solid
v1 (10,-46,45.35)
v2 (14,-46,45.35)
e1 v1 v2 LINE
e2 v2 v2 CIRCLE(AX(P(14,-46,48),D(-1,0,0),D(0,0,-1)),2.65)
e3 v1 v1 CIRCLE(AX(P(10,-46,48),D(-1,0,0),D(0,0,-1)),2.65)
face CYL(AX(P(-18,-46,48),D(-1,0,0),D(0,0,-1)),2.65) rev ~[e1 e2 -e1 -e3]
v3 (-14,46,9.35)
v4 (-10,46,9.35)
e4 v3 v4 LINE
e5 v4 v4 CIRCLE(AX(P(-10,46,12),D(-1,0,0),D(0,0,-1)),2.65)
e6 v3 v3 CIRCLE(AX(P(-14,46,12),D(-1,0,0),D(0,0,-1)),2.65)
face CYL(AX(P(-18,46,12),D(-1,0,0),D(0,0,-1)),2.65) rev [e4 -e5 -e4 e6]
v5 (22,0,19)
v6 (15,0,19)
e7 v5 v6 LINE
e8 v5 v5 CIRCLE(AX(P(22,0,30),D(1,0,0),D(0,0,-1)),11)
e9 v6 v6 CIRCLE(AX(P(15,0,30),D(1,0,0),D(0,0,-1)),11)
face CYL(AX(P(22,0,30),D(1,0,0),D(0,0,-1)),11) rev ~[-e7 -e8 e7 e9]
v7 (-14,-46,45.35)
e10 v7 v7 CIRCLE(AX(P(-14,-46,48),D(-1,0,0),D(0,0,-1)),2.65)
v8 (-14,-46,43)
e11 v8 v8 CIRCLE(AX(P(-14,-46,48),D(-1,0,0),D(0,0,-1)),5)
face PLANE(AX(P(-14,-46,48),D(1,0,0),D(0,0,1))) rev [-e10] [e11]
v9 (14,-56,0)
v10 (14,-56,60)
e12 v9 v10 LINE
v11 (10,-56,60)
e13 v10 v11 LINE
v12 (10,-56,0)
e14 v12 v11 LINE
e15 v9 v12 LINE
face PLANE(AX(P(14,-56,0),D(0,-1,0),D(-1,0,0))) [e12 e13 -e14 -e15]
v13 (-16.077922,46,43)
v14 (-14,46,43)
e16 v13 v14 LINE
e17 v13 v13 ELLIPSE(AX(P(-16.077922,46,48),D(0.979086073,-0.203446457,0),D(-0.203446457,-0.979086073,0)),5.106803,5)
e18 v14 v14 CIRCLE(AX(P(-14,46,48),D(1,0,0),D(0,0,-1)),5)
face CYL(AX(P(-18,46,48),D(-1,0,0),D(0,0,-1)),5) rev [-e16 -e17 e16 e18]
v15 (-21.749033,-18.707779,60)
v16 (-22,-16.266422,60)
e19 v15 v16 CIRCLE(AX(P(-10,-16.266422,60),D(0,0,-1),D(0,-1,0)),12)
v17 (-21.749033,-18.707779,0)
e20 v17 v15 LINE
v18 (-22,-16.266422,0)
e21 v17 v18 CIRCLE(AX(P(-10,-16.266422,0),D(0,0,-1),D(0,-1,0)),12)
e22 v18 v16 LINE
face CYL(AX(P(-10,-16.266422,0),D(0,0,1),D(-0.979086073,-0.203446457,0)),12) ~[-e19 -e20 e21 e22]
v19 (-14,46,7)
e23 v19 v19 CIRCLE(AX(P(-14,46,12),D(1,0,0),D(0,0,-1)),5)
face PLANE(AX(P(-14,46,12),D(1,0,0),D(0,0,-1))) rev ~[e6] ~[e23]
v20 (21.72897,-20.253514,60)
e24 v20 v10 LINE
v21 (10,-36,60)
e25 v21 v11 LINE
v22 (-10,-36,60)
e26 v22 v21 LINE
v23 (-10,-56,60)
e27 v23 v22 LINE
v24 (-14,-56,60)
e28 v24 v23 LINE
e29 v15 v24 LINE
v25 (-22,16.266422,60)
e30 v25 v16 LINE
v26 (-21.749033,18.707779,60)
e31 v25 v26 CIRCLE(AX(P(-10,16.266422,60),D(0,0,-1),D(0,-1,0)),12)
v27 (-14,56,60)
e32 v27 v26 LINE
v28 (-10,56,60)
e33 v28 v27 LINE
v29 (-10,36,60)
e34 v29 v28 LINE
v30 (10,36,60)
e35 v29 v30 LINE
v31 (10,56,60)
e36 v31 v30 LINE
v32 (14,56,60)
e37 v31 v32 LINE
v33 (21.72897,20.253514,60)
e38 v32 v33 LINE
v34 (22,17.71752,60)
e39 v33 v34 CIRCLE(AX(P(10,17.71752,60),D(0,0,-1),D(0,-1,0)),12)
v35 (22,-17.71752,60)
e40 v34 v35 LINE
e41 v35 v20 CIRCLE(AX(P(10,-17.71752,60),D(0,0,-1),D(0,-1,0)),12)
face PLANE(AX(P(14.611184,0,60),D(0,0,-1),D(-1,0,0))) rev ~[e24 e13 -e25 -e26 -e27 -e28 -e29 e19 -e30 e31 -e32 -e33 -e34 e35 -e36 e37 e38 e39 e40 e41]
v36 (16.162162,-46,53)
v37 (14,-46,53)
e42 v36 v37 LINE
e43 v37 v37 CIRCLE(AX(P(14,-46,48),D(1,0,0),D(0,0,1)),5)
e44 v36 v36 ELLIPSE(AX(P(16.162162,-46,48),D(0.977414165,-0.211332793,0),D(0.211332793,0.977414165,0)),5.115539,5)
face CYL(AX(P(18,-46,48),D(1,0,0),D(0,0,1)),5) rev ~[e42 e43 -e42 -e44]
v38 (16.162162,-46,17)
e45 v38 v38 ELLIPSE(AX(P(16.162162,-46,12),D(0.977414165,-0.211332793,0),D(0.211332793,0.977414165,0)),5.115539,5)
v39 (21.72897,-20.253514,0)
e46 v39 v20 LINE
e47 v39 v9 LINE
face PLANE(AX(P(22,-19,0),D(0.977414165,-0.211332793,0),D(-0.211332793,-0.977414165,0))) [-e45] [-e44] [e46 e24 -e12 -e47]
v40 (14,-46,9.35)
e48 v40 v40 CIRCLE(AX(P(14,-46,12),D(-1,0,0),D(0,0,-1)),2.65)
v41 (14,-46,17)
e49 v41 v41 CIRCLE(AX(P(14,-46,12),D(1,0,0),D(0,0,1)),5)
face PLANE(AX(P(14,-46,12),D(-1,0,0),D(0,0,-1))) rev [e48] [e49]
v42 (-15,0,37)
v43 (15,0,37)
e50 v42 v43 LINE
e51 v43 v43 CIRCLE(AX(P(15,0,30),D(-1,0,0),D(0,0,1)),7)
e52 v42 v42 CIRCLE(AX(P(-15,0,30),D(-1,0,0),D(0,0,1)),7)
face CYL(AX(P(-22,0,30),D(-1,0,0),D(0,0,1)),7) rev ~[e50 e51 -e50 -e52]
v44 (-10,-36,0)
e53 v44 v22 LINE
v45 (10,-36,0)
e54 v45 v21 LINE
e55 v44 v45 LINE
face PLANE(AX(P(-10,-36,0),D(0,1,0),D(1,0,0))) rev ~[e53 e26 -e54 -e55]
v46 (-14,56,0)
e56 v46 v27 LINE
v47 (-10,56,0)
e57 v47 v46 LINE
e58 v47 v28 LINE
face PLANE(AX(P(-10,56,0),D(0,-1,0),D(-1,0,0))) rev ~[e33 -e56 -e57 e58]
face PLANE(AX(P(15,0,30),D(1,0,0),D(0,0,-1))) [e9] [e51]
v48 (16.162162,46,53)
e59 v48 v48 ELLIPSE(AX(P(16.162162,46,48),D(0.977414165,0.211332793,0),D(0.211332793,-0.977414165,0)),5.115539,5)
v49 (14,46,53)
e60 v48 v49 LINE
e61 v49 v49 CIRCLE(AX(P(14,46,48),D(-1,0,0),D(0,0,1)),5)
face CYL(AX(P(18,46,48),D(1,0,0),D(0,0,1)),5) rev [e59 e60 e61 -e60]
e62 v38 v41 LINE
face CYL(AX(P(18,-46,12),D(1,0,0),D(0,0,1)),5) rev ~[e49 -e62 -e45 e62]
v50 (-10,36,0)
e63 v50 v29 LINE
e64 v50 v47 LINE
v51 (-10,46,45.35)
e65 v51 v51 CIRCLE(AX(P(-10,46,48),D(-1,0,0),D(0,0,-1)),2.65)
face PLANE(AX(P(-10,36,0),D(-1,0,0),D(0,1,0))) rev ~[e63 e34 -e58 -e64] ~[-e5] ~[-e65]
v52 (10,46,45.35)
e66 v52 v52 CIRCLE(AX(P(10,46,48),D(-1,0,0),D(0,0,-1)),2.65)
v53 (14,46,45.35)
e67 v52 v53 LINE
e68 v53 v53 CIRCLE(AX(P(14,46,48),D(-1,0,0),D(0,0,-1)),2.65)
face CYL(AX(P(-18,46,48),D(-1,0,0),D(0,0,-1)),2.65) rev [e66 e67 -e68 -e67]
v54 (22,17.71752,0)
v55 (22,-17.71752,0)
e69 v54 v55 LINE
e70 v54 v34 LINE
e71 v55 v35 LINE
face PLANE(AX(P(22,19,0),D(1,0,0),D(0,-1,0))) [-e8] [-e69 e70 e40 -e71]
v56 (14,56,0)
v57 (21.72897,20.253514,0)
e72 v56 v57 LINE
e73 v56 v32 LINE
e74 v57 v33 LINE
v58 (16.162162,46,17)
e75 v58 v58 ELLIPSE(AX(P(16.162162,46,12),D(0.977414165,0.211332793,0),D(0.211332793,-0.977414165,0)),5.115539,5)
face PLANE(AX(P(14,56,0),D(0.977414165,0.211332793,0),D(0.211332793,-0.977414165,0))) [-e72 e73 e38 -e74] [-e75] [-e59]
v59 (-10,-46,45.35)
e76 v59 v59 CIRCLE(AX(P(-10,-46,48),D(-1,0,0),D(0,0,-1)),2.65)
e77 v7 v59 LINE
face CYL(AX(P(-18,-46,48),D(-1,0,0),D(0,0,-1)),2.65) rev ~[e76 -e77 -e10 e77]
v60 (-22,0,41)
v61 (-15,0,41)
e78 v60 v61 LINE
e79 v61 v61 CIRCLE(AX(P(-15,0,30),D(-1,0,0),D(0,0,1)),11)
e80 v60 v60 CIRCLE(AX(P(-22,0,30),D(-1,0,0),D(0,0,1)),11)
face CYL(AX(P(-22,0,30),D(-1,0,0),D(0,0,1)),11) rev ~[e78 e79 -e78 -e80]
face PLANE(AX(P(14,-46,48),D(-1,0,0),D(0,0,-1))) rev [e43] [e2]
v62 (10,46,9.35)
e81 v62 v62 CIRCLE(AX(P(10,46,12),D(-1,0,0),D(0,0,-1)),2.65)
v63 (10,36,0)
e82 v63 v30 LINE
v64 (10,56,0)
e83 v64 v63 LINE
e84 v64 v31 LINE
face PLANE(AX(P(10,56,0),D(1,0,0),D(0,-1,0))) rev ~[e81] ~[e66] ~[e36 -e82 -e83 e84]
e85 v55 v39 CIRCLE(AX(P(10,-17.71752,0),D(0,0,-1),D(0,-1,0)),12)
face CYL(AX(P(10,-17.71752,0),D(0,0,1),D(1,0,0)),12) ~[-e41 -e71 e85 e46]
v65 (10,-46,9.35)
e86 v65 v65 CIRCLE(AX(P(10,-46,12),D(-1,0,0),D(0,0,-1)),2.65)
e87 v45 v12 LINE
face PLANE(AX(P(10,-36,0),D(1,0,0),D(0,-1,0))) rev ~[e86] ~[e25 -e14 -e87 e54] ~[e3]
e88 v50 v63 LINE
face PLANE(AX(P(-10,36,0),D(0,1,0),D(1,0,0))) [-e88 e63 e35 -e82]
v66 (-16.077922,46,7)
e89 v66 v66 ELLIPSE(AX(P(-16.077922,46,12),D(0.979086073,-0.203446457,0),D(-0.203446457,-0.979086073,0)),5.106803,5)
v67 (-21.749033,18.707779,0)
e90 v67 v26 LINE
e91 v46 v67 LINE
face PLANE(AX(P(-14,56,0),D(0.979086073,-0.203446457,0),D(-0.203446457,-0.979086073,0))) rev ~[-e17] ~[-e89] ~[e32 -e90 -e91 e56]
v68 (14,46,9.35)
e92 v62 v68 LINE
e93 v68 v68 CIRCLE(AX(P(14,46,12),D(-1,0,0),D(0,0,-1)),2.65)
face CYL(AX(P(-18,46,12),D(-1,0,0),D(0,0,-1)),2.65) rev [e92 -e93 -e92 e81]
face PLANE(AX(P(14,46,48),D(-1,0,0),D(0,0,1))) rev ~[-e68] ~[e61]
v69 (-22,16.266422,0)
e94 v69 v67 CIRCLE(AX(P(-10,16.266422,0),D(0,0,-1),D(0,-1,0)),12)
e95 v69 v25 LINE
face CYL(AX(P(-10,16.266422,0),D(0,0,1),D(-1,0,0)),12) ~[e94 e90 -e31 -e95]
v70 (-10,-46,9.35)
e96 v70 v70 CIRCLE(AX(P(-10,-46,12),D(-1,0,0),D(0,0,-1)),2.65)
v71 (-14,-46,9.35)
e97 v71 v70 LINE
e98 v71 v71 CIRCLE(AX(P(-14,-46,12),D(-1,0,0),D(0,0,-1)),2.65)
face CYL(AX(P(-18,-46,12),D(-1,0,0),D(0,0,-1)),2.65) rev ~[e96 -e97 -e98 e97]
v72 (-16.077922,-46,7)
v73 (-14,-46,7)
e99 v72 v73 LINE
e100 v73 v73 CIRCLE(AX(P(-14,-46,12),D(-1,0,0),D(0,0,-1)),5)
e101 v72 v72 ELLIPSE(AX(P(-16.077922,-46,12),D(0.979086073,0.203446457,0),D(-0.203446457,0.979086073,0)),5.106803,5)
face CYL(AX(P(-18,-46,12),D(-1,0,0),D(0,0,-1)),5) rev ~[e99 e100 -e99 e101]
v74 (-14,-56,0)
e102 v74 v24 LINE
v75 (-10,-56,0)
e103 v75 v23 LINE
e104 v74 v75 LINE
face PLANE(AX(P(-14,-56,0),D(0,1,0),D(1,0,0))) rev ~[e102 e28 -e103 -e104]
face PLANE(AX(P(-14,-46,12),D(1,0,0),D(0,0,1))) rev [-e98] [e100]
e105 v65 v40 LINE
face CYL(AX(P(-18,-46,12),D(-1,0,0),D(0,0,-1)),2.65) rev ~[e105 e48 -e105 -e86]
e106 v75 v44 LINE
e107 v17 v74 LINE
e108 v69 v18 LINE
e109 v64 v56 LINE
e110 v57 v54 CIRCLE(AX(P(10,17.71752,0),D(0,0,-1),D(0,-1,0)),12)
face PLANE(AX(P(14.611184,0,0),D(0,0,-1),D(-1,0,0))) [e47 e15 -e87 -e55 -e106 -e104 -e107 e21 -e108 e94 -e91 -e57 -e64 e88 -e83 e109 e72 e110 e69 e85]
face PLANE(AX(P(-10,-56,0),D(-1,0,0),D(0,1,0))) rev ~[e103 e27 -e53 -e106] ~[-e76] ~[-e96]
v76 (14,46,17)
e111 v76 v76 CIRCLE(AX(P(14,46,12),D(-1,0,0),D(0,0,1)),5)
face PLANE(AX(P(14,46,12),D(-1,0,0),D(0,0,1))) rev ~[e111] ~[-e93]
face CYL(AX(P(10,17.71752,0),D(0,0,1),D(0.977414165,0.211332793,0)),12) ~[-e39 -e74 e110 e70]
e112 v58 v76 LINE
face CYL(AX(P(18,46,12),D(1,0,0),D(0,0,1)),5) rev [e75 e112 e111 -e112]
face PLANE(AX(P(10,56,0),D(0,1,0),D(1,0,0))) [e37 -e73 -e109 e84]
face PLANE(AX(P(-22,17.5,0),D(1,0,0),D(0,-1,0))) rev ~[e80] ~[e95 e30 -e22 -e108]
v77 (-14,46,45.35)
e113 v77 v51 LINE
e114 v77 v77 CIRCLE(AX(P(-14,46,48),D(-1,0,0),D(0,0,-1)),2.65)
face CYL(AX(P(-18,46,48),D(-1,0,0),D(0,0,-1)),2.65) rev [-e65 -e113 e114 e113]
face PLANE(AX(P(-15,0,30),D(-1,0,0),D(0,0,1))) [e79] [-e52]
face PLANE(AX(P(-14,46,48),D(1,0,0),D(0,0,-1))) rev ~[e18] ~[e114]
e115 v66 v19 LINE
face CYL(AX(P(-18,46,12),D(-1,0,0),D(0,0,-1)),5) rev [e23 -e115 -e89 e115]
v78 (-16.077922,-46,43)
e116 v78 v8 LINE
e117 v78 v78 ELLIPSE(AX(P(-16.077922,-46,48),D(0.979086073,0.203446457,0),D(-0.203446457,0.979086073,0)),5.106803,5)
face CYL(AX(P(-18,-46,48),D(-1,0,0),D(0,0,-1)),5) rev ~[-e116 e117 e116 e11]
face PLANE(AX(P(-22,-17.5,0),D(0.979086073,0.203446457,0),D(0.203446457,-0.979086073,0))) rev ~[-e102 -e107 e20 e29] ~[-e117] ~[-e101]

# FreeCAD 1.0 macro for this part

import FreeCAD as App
import Part
import Sketcher


def edges_at(feature, points):
    """Names of the edges that pass closest to the given points."""
    edges = feature.Shape.Edges
    near = lambda p: min(range(len(edges)), key=lambda i: edges[i].distToShape(Part.Vertex(*p))[0])
    return sorted({f"Edge{near(p) + 1}" for p in points})

doc = App.newDocument("Part")
body = doc.addObject("PartDesign::Body", "Body")

sketch1 = doc.addObject("Sketcher::SketchObject", "Sketch")
body.addObject(sketch1)
sketch1.AttachmentSupport = (doc.XY_Plane, [""])
sketch1.MapMode = "FlatFace"
sketch1.addGeometry([
    Part.LineSegment(App.Vector(10, 56, 0), App.Vector(10, 36, 0)),
    Part.LineSegment(App.Vector(10, 36, 0), App.Vector(-10, 36, 0)),
    Part.LineSegment(App.Vector(-10, 36, 0), App.Vector(-10, 56, 0)),
    Part.LineSegment(App.Vector(-10, 56, 0), App.Vector(-14, 56, 0)),
    Part.LineSegment(App.Vector(-14, 56, 0), App.Vector(-22, 17.5, 0)),
    Part.LineSegment(App.Vector(-22, 17.5, 0), App.Vector(-22, -17.5, 0)),
    Part.LineSegment(App.Vector(-22, -17.5, 0), App.Vector(-14, -56, 0)),
    Part.LineSegment(App.Vector(-14, -56, 0), App.Vector(-10, -56, 0)),
    Part.LineSegment(App.Vector(-10, -56, 0), App.Vector(-10, -36, 0)),
    Part.LineSegment(App.Vector(-10, -36, 0), App.Vector(10, -36, 0)),
    Part.LineSegment(App.Vector(10, -36, 0), App.Vector(10, -56, 0)),
    Part.LineSegment(App.Vector(10, -56, 0), App.Vector(14, -56, 0)),
    Part.LineSegment(App.Vector(14, -56, 0), App.Vector(22, -19, 0)),
    Part.LineSegment(App.Vector(22, -19, 0), App.Vector(22, 19, 0)),
    Part.LineSegment(App.Vector(22, 19, 0), App.Vector(14, 56, 0)),
    Part.LineSegment(App.Vector(14, 56, 0), App.Vector(10, 56, 0)),
], False)
sketch1.addConstraint([
    Sketcher.Constraint("Coincident", 0, 2, 1, 1),
    Sketcher.Constraint("Coincident", 1, 2, 2, 1),
    Sketcher.Constraint("Coincident", 2, 2, 3, 1),
    Sketcher.Constraint("Coincident", 3, 2, 4, 1),
    Sketcher.Constraint("Coincident", 4, 2, 5, 1),
    Sketcher.Constraint("Coincident", 5, 2, 6, 1),
    Sketcher.Constraint("Coincident", 6, 2, 7, 1),
    Sketcher.Constraint("Coincident", 7, 2, 8, 1),
    Sketcher.Constraint("Coincident", 8, 2, 9, 1),
    Sketcher.Constraint("Coincident", 9, 2, 10, 1),
    Sketcher.Constraint("Coincident", 10, 2, 11, 1),
    Sketcher.Constraint("Coincident", 11, 2, 12, 1),
    Sketcher.Constraint("Coincident", 12, 2, 13, 1),
    Sketcher.Constraint("Coincident", 13, 2, 14, 1),
    Sketcher.Constraint("Coincident", 14, 2, 15, 1),
    Sketcher.Constraint("Coincident", 15, 2, 0, 1),
    Sketcher.Constraint("Vertical", 0),
    Sketcher.Constraint("Horizontal", 1),
    Sketcher.Constraint("Vertical", 2),
    Sketcher.Constraint("Horizontal", 3),
    Sketcher.Constraint("Vertical", 5),
    Sketcher.Constraint("Horizontal", 7),
    Sketcher.Constraint("Vertical", 8),
    Sketcher.Constraint("Horizontal", 9),
    Sketcher.Constraint("Vertical", 10),
    Sketcher.Constraint("Horizontal", 11),
    Sketcher.Constraint("Vertical", 13),
    Sketcher.Constraint("Horizontal", 15),
    Sketcher.Constraint("Symmetric", 0, 2, 8, 2, -1, 1),
    Sketcher.Constraint("Symmetric", 2, 2, 10, 2, -1, 1),
    Sketcher.Constraint("Symmetric", 6, 2, 14, 2, -1, 1),
    Sketcher.Constraint("Symmetric", 7, 2, 10, 2, -2),
    Sketcher.Constraint("Vertical", 3, 2, 6, 2),
    Sketcher.Constraint("Vertical", 11, 2, 14, 2),
    Sketcher.Constraint("Equal", 9, 0),
    Sketcher.Constraint("Equal", 4, 6),
    Sketcher.Constraint("Equal", 12, 14),
    Sketcher.Constraint("DistanceX", 1, 2, 1, 1, 20.0),
    Sketcher.Constraint("DistanceX", 3, 2, 3, 1, 4.0),
    Sketcher.Constraint("DistanceY", 5, 2, 5, 1, 35.0),
    Sketcher.Constraint("DistanceY", 13, 1, 13, 2, 38.0),
    Sketcher.Constraint("DistanceY", -1, 1, 0, 2, 36.0),
    Sketcher.Constraint("DistanceX", 4, 2, -1, 1, 22.0),
    Sketcher.Constraint("DistanceX", -1, 1, 12, 2, 22.0),
])
pad1 = doc.addObject("PartDesign::Pad", "Pad")
body.addObject(pad1)
pad1.Profile = sketch1
pad1.Length = 60

sketch2 = doc.addObject("Sketcher::SketchObject", "Sketch001")
body.addObject(sketch2)
sketch2.AttachmentSupport = (doc.YZ_Plane, [""])
sketch2.MapMode = "FlatFace"
sketch2.AttachmentOffset = App.Placement(App.Vector(0, 0, -22), App.Rotation())
sketch2.addGeometry(Part.Circle(App.Vector(0, 30, 0), App.Vector(0, 0, 1), 7), False)
sketch2.addConstraint([
    Sketcher.Constraint("PointOnObject", 0, 3, -2),
    Sketcher.Constraint("Diameter", 0, 14.0),
    Sketcher.Constraint("DistanceY", -1, 1, 0, 3, 30.0),
])
pocket1 = doc.addObject("PartDesign::Pocket", "Pocket")
body.addObject(pocket1)
pocket1.Profile = sketch2
pocket1.Type = "ThroughAll"
pocket1.Reversed = True

sketch3 = doc.addObject("Sketcher::SketchObject", "Sketch002")
body.addObject(sketch3)
sketch3.AttachmentSupport = (doc.YZ_Plane, [""])
sketch3.MapMode = "FlatFace"
sketch3.AttachmentOffset = App.Placement(App.Vector(0, 0, -22), App.Rotation())
sketch3.addGeometry(Part.Circle(App.Vector(0, 30, 0), App.Vector(0, 0, 1), 11), False)
sketch3.addConstraint([
    Sketcher.Constraint("PointOnObject", 0, 3, -2),
    Sketcher.Constraint("Diameter", 0, 22.0),
    Sketcher.Constraint("DistanceY", -1, 1, 0, 3, 30.0),
])
pocket2 = doc.addObject("PartDesign::Pocket", "Pocket001")
body.addObject(pocket2)
pocket2.Profile = sketch3
pocket2.Length = 7
pocket2.Reversed = True

sketch4 = doc.addObject("Sketcher::SketchObject", "Sketch003")
body.addObject(sketch4)
sketch4.AttachmentSupport = (doc.YZ_Plane, [""])
sketch4.MapMode = "FlatFace"
sketch4.AttachmentOffset = App.Placement(App.Vector(0, 0, 22), App.Rotation())
sketch4.addGeometry(Part.Circle(App.Vector(0, 30, 0), App.Vector(0, 0, 1), 11), False)
sketch4.addConstraint([
    Sketcher.Constraint("PointOnObject", 0, 3, -2),
    Sketcher.Constraint("Diameter", 0, 22.0),
    Sketcher.Constraint("DistanceY", -1, 1, 0, 3, 30.0),
])
pocket3 = doc.addObject("PartDesign::Pocket", "Pocket002")
body.addObject(pocket3)
pocket3.Profile = sketch4
pocket3.Length = 7

sketch5 = doc.addObject("Sketcher::SketchObject", "Sketch004")
body.addObject(sketch5)
sketch5.AttachmentSupport = (doc.YZ_Plane, [""])
sketch5.MapMode = "FlatFace"
sketch5.AttachmentOffset = App.Placement(App.Vector(0, 0, -18), App.Rotation())
sketch5.addGeometry([
    Part.Circle(App.Vector(46, 12, 0), App.Vector(0, 0, 1), 2.6),
    Part.Circle(App.Vector(46, 48, 0), App.Vector(0, 0, 1), 2.6),
], False)
sketch5.addConstraint([
    Sketcher.Constraint("Equal", 0, 1),
    Sketcher.Constraint("Vertical", 0, 3, 1, 3),
    Sketcher.Constraint("Diameter", 0, 5.3),
    Sketcher.Constraint("DistanceX", -1, 1, 0, 3, 46.0),
    Sketcher.Constraint("DistanceY", -1, 1, 0, 3, 12.0),
    Sketcher.Constraint("DistanceY", -1, 1, 1, 3, 48.0),
])
pocket4 = doc.addObject("PartDesign::Pocket", "Pocket003")
body.addObject(pocket4)
pocket4.Profile = sketch5
pocket4.Type = "ThroughAll"
pocket4.Reversed = True

sketch6 = doc.addObject("Sketcher::SketchObject", "Sketch005")
body.addObject(sketch6)
sketch6.AttachmentSupport = (doc.YZ_Plane, [""])
sketch6.MapMode = "FlatFace"
sketch6.AttachmentOffset = App.Placement(App.Vector(0, 0, -18), App.Rotation())
sketch6.addGeometry([
    Part.Circle(App.Vector(46, 12, 0), App.Vector(0, 0, 1), 5),
    Part.Circle(App.Vector(46, 48, 0), App.Vector(0, 0, 1), 5),
], False)
sketch6.addConstraint([
    Sketcher.Constraint("Equal", 0, 1),
    Sketcher.Constraint("Vertical", 0, 3, 1, 3),
    Sketcher.Constraint("Diameter", 0, 10.0),
    Sketcher.Constraint("DistanceX", -1, 1, 0, 3, 46.0),
    Sketcher.Constraint("DistanceY", -1, 1, 0, 3, 12.0),
    Sketcher.Constraint("DistanceY", -1, 1, 1, 3, 48.0),
])
pocket5 = doc.addObject("PartDesign::Pocket", "Pocket004")
body.addObject(pocket5)
pocket5.Profile = sketch6
pocket5.Length = 4
pocket5.Reversed = True
doc.recompute()

mirrored = doc.addObject("PartDesign::Mirrored", "Mirrored")
body.addObject(mirrored)
mirrored.Originals = [pocket4, pocket5]
mirrored.MirrorPlane = (doc.XZ_Plane, [""])
body.Tip = mirrored
doc.recompute()

fillet = doc.addObject("PartDesign::Fillet", "Fillet")
body.addObject(fillet)
fillet.Base = (mirrored, edges_at(mirrored, [
    (-22, -17.5, 30),
    (-22, 17.5, 30),
    (22, 19, 30),
    (22, -19, 30),
]))
fillet.Radius = 12

sketch7 = doc.addObject("Sketcher::SketchObject", "Sketch006")
body.addObject(sketch7)
sketch7.AttachmentSupport = (doc.YZ_Plane, [""])
sketch7.MapMode = "FlatFace"
sketch7.AttachmentOffset = App.Placement(App.Vector(0, 0, 18), App.Rotation())
sketch7.addGeometry([
    Part.Circle(App.Vector(46, 12, 0), App.Vector(0, 0, 1), 5),
    Part.Circle(App.Vector(46, 48, 0), App.Vector(0, 0, 1), 5),
], False)
sketch7.addConstraint([
    Sketcher.Constraint("Equal", 0, 1),
    Sketcher.Constraint("Vertical", 0, 3, 1, 3),
    Sketcher.Constraint("Diameter", 0, 10.0),
    Sketcher.Constraint("DistanceX", -1, 1, 0, 3, 46.0),
    Sketcher.Constraint("DistanceY", -1, 1, 0, 3, 12.0),
    Sketcher.Constraint("DistanceY", -1, 1, 1, 3, 48.0),
])
pocket6 = doc.addObject("PartDesign::Pocket", "Pocket005")
body.addObject(pocket6)
pocket6.Profile = sketch7
pocket6.Length = 4
doc.recompute()

mirrored2 = doc.addObject("PartDesign::Mirrored", "Mirrored001")
body.addObject(mirrored2)
mirrored2.Originals = [pocket6]
mirrored2.MirrorPlane = (doc.XZ_Plane, [""])
body.Tip = mirrored2

doc.recompute()
